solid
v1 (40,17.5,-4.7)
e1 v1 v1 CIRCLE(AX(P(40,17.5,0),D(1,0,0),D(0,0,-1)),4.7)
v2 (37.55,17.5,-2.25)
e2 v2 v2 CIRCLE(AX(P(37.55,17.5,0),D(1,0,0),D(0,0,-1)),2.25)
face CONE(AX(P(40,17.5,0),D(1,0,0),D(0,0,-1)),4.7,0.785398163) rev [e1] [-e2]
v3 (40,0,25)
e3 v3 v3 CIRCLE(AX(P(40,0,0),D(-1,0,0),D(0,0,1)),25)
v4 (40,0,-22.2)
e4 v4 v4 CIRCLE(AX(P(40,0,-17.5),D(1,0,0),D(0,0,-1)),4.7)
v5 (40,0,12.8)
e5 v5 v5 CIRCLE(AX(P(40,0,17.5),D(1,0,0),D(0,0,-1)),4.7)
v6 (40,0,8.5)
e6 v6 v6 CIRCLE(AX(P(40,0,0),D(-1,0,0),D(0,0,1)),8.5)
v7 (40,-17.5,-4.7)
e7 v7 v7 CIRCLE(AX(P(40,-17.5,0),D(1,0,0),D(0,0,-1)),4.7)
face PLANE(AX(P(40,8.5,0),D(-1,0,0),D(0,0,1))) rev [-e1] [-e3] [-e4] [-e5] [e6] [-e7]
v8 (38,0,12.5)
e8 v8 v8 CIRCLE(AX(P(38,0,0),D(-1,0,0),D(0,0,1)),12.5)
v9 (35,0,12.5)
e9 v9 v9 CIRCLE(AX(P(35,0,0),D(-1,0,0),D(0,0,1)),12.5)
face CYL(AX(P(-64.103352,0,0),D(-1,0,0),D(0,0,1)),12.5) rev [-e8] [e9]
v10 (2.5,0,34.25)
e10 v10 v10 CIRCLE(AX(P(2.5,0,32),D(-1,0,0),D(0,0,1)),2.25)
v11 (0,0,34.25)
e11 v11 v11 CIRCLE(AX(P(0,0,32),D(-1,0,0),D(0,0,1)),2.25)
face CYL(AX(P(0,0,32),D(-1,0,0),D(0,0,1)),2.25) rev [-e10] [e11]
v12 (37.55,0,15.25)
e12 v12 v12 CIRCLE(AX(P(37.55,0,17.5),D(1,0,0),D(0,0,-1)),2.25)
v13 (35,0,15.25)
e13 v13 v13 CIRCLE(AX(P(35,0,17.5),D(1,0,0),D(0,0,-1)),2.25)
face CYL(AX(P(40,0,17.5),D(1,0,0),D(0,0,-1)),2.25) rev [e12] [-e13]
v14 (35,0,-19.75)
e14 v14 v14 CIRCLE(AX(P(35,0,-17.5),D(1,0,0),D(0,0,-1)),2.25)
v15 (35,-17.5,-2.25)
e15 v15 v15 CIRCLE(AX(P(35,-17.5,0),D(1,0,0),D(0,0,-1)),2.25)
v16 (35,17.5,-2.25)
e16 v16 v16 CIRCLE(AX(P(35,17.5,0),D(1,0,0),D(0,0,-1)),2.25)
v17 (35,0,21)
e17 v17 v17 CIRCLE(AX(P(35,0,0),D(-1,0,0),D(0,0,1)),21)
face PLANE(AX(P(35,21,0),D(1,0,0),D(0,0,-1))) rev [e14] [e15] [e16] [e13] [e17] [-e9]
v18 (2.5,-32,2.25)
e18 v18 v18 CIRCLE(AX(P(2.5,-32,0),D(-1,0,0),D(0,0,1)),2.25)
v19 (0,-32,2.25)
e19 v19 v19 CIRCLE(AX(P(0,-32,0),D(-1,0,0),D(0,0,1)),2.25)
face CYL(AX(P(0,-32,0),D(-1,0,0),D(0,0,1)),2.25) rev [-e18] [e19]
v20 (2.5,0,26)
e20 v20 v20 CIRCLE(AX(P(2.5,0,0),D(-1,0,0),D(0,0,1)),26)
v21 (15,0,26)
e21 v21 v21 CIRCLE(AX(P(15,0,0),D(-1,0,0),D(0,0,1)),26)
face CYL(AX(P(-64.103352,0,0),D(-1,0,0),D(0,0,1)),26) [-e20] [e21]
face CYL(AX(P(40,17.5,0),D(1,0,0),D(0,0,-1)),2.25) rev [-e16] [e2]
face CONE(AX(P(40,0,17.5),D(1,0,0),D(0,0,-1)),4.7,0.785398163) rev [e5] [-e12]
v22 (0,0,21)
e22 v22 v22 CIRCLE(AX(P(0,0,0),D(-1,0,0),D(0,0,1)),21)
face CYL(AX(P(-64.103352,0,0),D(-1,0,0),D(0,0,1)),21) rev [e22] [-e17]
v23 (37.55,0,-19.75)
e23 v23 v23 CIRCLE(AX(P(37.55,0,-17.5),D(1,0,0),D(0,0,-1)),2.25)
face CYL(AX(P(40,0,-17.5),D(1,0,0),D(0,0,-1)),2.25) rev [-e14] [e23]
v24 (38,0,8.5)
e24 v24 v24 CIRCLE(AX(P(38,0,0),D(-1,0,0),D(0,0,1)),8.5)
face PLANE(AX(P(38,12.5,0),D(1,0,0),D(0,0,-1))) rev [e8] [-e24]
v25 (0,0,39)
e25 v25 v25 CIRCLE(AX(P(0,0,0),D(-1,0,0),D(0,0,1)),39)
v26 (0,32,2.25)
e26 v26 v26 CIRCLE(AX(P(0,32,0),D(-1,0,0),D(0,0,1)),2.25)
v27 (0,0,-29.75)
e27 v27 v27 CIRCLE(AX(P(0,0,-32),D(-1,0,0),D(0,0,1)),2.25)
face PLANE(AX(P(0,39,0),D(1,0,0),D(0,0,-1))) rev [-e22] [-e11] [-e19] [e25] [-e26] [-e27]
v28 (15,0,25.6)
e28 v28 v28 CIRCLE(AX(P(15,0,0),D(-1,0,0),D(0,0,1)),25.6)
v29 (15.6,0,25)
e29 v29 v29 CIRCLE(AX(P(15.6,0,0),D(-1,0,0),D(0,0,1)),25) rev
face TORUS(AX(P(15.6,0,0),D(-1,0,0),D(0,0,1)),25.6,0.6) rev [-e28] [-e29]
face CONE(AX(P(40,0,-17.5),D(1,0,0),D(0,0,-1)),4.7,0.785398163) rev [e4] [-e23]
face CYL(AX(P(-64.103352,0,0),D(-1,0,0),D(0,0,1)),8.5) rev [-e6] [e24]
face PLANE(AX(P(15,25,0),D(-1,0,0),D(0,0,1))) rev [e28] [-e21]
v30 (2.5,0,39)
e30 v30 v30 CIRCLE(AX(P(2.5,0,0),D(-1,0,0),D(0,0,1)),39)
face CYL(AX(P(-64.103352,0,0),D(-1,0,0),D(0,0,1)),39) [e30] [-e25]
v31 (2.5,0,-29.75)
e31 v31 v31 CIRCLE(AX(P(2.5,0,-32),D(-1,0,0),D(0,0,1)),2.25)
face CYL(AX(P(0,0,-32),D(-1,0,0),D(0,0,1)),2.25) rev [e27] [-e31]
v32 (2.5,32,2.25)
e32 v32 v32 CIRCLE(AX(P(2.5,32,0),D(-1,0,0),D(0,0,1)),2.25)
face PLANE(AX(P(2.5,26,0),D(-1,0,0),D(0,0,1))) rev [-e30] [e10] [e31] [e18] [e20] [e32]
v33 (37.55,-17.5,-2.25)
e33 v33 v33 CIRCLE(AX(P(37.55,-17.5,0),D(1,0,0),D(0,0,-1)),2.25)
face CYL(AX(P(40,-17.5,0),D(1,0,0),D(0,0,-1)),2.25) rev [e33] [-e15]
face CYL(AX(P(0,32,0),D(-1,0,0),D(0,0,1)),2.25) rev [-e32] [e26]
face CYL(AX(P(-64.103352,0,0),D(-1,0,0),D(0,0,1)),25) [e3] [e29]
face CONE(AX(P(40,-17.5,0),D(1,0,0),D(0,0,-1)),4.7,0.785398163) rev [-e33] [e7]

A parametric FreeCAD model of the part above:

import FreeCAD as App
import Part
import Sketcher
from FreeCAD import Vector
Q = App.Units.Quantity


def edges_at(feature, points):
    """Names of the edges that pass closest to the given points."""
    edges = feature.Shape.Edges
    near = lambda p: min(range(len(edges)), key=lambda i: edges[i].distToShape(Part.Vertex(*p))[0])
    return sorted({f"Edge{near(p) + 1}" for p in points})


def add_polygon(sketch, points):
    """Adds a closed chain of lines whose ends are joined by coincident constraints."""
    first, n = sketch.GeometryCount, len(points)
    for a, b in zip(points, points[1:] + points[:1]):
        sketch.addGeometry(Part.LineSegment(App.Vector(*a, 0), App.Vector(*b, 0)), False)
    for i in range(n):
        sketch.addConstraint(Sketcher.Constraint("Coincident", first + i, 2, first + (i + 1) % n, 1))

doc = App.newDocument("Part")
body = doc.addObject("PartDesign::Body", "Body")

# Sketch on XY plane
sketch1 = body.newObject("Sketcher::SketchObject", "Sketch")
sketch1.AttachmentSupport = (doc.getObject("XY_Plane"), [""])
sketch1.MapMode = "FlatFace"
add_polygon(sketch1, [(0, 21), (35, 21), (35, 12.5), (38, 12.5), (38, 8.5), (40, 8.5), (40, 25), (15, 25), (15, 26), (2.5, 26), (2.5, 39), (0, 39)])  # lines 0-11
sketch1.addConstraint([
    Sketcher.Constraint("Horizontal", 0),
    Sketcher.Constraint("Vertical", 1),
    Sketcher.Constraint("Horizontal", 2),
    Sketcher.Constraint("Vertical", 3),
    Sketcher.Constraint("Horizontal", 4),
    Sketcher.Constraint("Vertical", 5),
    Sketcher.Constraint("Horizontal", 6),
    Sketcher.Constraint("Vertical", 7),
    Sketcher.Constraint("Horizontal", 8),
    Sketcher.Constraint("Vertical", 9),
    Sketcher.Constraint("Horizontal", 10),
    Sketcher.Constraint("Vertical", 11),
    Sketcher.Constraint("PointOnObject", 10, 2, -2),
    Sketcher.Constraint("DistanceX", 0, 1, 0, 2, Q("35 mm")),
    Sketcher.Constraint("DistanceX", 2, 1, 2, 2, Q("3 mm")),
    Sketcher.Constraint("DistanceX", 4, 1, 4, 2, Q("2 mm")),
    Sketcher.Constraint("DistanceX", 6, 2, 6, 1, Q("25 mm")),
    Sketcher.Constraint("DistanceY", 3, 2, 3, 1, Q("4 mm")),
    Sketcher.Constraint("DistanceY", 7, 1, 7, 2, Q("1 mm")),
    Sketcher.Constraint("DistanceY", 9, 1, 9, 2, Q("13 mm")),
    Sketcher.Constraint("DistanceY", 11, 2, 11, 1, Q("18 mm")),
    Sketcher.Constraint("DistanceX", 8, 2, 8, 1, Q("12.5 mm")),
    Sketcher.Constraint("DistanceY", 1, 2, 1, 1, Q("8.5 mm")),
    Sketcher.Constraint("DistanceY", -1, 1, 0, 2, Q("21 mm")),
])
revolution = body.newObject("PartDesign::Revolution", "Revolution")
revolution.Profile = sketch1
revolution.ReferenceAxis = (sketch1, ["H_Axis"])
revolution.Angle = 360

# Sketch on YZ plane
sketch2 = body.newObject("Sketcher::SketchObject", "Sketch001")
sketch2.AttachmentSupport = (doc.getObject("YZ_Plane"), [""])
sketch2.MapMode = "FlatFace"
sketch2.AttachmentOffset = App.Placement(Vector(0, 0, 40), App.Rotation())
sketch2.addGeometry([
    Part.Circle(Vector(17.5, 0, 0), Vector(0, 0, 1), 2.2),
    Part.Circle(Vector(0, -17.5, 0), Vector(0, 0, 1), 2.2),
    Part.Circle(Vector(-17.5, 0, 0), Vector(0, 0, 1), 2.2),
    Part.Circle(Vector(0, 17.5, 0), Vector(0, 0, 1), 2.2),
], False)
sketch2.addConstraint([
    Sketcher.Constraint("Equal", 0, 1),
    Sketcher.Constraint("Equal", 1, 2),
    Sketcher.Constraint("Equal", 2, 3),
    Sketcher.Constraint("Symmetric", 0, 3, 2, 3, -1, 1),
    Sketcher.Constraint("Symmetric", 1, 3, 3, 3, -1, 1),
    Sketcher.Constraint("PointOnObject", 0, 3, -1),
    Sketcher.Constraint("PointOnObject", 1, 3, -2),
    Sketcher.Constraint("Diameter", 0, Q("4.5 mm")),
    Sketcher.Constraint("DistanceX", 2, 3, 0, 3, Q("35 mm")),
    Sketcher.Constraint("DistanceY", 1, 3, 3, 3, Q("35 mm")),
])
doc.recompute()
hole = body.newObject("PartDesign::Hole", "Hole")
hole.Profile = sketch2
hole.ThreadType = "None"
hole.Diameter = 4.5
hole.DepthType = "Dimension"
hole.Depth = 5
hole.DrillPoint = "Flat"
hole.HoleCutType = "Countersink"
hole.HoleCutDiameter = 9.4
hole.HoleCutCountersinkAngle = 90
doc.recompute()

fillet = body.newObject("PartDesign::Fillet", "Fillet")
fillet.Base = (hole, edges_at(hole, [(15, -25, 0)]))
fillet.Radius = 0.6

# Sketch on YZ plane
sketch3 = body.newObject("Sketcher::SketchObject", "Sketch002")
sketch3.AttachmentSupport = (doc.getObject("YZ_Plane"), [""])
sketch3.MapMode = "FlatFace"
sketch3.addGeometry([
    Part.Circle(Vector(32, 0, 0), Vector(0, 0, 1), 2.2),
    Part.Circle(Vector(-32, 0, 0), Vector(0, 0, 1), 2.2),
    Part.Circle(Vector(0, 32, 0), Vector(0, 0, 1), 2.2),
    Part.Circle(Vector(0, -32, 0), Vector(0, 0, 1), 2.2),
], False)
sketch3.addConstraint([
    Sketcher.Constraint("Equal", 0, 1),
    Sketcher.Constraint("Equal", 1, 2),
    Sketcher.Constraint("Equal", 2, 3),
    Sketcher.Constraint("Symmetric", 0, 3, 1, 3, -1, 1),
    Sketcher.Constraint("Symmetric", 2, 3, 3, 3, -1, 1),
    Sketcher.Constraint("PointOnObject", 0, 3, -1),
    Sketcher.Constraint("PointOnObject", 2, 3, -2),
    Sketcher.Constraint("Diameter", 0, Q("4.5 mm")),
    Sketcher.Constraint("DistanceX", -1, 1, 0, 3, Q("32 mm")),
    Sketcher.Constraint("DistanceY", -1, 1, 2, 3, Q("32 mm")),
])
doc.recompute()
hole2 = body.newObject("PartDesign::Hole", "Hole001")
hole2.Profile = sketch3
hole2.ThreadType = "None"
hole2.Diameter = 4.5
hole2.DepthType = "Dimension"
hole2.Depth = 2.5
hole2.DrillPoint = "Flat"
hole2.Reversed = True

doc.recompute()
